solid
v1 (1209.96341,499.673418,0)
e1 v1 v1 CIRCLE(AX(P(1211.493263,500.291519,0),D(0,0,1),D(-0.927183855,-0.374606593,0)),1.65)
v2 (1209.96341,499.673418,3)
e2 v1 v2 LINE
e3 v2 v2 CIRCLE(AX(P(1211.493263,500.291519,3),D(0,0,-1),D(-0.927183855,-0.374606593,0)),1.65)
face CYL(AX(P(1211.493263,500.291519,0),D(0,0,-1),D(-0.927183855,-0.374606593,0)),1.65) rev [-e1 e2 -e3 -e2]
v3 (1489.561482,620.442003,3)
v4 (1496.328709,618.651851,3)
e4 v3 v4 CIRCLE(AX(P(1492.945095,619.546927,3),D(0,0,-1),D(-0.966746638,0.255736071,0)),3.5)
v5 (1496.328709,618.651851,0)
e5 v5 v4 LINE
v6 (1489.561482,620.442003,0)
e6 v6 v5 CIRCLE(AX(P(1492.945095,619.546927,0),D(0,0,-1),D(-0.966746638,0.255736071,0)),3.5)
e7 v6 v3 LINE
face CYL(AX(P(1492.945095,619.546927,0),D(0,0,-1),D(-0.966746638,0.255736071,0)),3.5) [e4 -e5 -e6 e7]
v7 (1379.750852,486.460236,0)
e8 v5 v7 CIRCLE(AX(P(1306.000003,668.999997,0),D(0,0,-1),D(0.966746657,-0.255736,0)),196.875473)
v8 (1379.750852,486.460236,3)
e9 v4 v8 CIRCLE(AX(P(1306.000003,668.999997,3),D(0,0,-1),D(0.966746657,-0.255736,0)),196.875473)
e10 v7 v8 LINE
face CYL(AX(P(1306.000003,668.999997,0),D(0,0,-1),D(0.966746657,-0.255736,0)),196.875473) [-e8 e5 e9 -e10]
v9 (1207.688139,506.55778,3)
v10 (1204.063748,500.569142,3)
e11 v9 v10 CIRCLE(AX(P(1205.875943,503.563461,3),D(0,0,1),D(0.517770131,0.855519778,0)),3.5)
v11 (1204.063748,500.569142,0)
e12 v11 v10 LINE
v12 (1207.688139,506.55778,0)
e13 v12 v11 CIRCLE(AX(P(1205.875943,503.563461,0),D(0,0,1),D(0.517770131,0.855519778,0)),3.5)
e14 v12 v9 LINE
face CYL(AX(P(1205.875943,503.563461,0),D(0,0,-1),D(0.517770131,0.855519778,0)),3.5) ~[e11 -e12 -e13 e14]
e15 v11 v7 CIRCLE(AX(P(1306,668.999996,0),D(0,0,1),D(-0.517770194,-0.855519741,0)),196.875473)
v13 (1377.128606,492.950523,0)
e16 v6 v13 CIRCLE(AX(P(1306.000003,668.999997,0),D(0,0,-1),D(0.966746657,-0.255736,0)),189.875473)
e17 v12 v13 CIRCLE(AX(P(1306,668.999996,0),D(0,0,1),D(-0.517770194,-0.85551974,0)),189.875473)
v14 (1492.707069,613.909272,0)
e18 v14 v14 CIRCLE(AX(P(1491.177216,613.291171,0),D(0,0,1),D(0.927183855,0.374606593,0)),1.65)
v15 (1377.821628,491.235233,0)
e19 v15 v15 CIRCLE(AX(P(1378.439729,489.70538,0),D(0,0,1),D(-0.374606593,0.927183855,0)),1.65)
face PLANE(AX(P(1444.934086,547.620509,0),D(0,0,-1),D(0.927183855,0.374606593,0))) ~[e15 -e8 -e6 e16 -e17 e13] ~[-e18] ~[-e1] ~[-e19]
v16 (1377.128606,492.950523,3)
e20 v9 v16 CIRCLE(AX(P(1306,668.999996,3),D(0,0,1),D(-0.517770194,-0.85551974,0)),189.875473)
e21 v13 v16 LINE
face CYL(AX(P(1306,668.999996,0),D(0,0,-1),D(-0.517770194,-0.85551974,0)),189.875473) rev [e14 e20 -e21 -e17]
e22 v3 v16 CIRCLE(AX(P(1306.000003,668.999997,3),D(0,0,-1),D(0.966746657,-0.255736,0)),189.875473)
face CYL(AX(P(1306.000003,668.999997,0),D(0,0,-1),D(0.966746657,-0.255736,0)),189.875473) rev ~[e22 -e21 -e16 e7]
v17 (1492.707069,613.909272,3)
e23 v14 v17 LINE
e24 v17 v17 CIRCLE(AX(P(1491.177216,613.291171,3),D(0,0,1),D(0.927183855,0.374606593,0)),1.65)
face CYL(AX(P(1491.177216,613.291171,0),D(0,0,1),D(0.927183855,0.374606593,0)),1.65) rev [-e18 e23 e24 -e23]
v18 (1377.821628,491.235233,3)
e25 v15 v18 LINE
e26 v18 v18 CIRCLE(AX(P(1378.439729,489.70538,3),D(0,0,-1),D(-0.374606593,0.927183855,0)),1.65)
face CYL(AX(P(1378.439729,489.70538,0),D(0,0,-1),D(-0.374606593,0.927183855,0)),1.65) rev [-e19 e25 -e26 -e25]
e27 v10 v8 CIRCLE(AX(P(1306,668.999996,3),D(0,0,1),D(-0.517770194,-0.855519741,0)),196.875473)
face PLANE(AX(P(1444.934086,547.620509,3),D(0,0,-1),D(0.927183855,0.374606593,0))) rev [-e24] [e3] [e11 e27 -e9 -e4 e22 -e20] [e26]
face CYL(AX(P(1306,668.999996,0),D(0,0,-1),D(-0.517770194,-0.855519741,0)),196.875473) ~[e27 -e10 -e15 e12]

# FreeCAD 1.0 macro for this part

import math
import FreeCAD as App
import Part
import Sketcher
Q = App.Units.Quantity

doc = App.newDocument("Part")
params = doc.addObject("Spreadsheet::Sheet", "Params")
for row, (alias, value) in enumerate([
    ("sketch1_radius", "3.5 mm"),
    ("pad1_length", "3 mm"),
    ("sketch2_diameter", "3.3 mm"),
], start=1):
    params.set(f"A{row}", alias)
    params.set(f"B{row}", "=" + value)
    params.setAlias(f"B{row}", alias)

body = doc.addObject("PartDesign::Body", "Body")

sketch1 = doc.addObject("Sketcher::SketchObject", "Sketch")
body.addObject(sketch1)
sketch1.AttachmentSupport = (doc.XY_Plane, [""])
sketch1.MapMode = "FlatFace"
sketch1.addGeometry([
    Part.ArcOfCircle(Part.Circle(App.Vector(0.000002, 0.000004, 0), App.Vector(0, 0, 1), 189.875473), math.radians(36.817201), math.radians(90.000001)),
    Part.ArcOfCircle(Part.Circle(App.Vector(154.807027, 115.882956, 0), App.Vector(0, 0, 1), 3.5), math.radians(-143.182795), math.radians(36.817205)),
    Part.ArcOfCircle(Part.Circle(App.Vector(0.000002, 0.000004, 0), App.Vector(0, 0, 1), 196.875473), math.radians(36.817201), math.radians(90.000001)),
    Part.LineSegment(App.Vector(0, 196.875477, 0), App.Vector(0, 189.875477, 0)),
], False)
sketch1.addConstraint([
    Sketcher.Constraint("Tangent", 0, 1, 1, 1),
    Sketcher.Constraint("Tangent", 1, 2, 2, 1),
    Sketcher.Constraint("Coincident", 2, 2, 3, 1),
    Sketcher.Constraint("Coincident", 3, 2, 0, 2),
    Sketcher.Constraint("Vertical", 3),
    Sketcher.Constraint("Coincident", 0, 3, -1, 1),
    Sketcher.Constraint("Coincident", 2, 3, -1, 1),
    Sketcher.Constraint("PointOnObject", 2, 2, -2),
    Sketcher.Constraint("Radius", 1, Q("3.5 mm")),
    Sketcher.Constraint("Radius", 0, Q("189.875473 mm")),
    Sketcher.Constraint("DistanceY", -1, 1, 1, 2, Q("117.98038 mm")),
])
sketch1.setExpression("Constraints[8]", "Params.sketch1_radius")
pad1 = doc.addObject("PartDesign::Pad", "Pad")
body.addObject(pad1)
pad1.Profile = sketch1
pad1.setExpression("Length", "Params.pad1_length")

sketch2 = doc.addObject("Sketcher::SketchObject", "Sketch001")
body.addObject(sketch2)
sketch2.AttachmentSupport = (doc.XY_Plane, [""])
sketch2.MapMode = "FlatFace"
sketch2.addGeometry([
    Part.Circle(App.Vector(150.82443, 121.020933, 0), App.Vector(0, 0, 1), 1.65),
    Part.ArcOfCircle(Part.Circle(App.Vector(0, 193.375477, 0), App.Vector(0, 0, 1), 1.65), math.radians(-90), math.radians(90)),
    Part.LineSegment(App.Vector(0, 195.025477, 0), App.Vector(0, 191.725477, 0)),
], False)
sketch2.addConstraint([
    Sketcher.Constraint("Coincident", 1, 1, 2, 2),
    Sketcher.Constraint("Coincident", 2, 1, 1, 2),
    Sketcher.Constraint("Vertical", 2),
    Sketcher.Constraint("Equal", 0, 1),
    Sketcher.Constraint("PointOnObject", 1, 3, -2),
    Sketcher.Constraint("PointOnObject", 1, 1, -2),
    Sketcher.Constraint("Diameter", 0, Q("3.3 mm")),
    Sketcher.Constraint("DistanceX", -1, 1, 0, 3, Q("150.82443 mm")),
    Sketcher.Constraint("DistanceY", -1, 1, 0, 3, Q("121.020933 mm")),
    Sketcher.Constraint("DistanceY", -1, 1, 1, 3, Q("193.375477 mm")),
])
sketch2.setExpression("Constraints[6]", "Params.sketch2_diameter")
pocket1 = doc.addObject("PartDesign::Pocket", "Pocket")
body.addObject(pocket1)
pocket1.Profile = sketch2
pocket1.Type = "ThroughAll"
pocket1.Midplane = True
doc.recompute()

mirrored = doc.addObject("PartDesign::Mirrored", "Mirrored")
body.addObject(mirrored)
mirrored.Originals = [pad1, pocket1]
mirrored.MirrorPlane = (doc.YZ_Plane, [""])
body.Tip = mirrored
body2 = doc.addObject("PartDesign::Body", "Body001")
doc.recompute()

body.Placement = App.Placement(App.Vector(0, 0, 0), App.Rotation(App.Vector(0, 0, 1), 60))
boolean = doc.addObject("PartDesign::Boolean", "Boolean")
body2.addObject(boolean)
boolean.Type = "Fuse"
boolean.addObjects([body])
body3 = doc.addObject("PartDesign::Body", "Body002")
doc.recompute()

body2.Placement = App.Placement(App.Vector(1306, 669, 0), App.Rotation(App.Vector(0, 0, 1), 142))
boolean2 = doc.addObject("PartDesign::Boolean", "Boolean001")
body3.addObject(boolean2)
boolean2.Type = "Fuse"
boolean2.addObjects([body2])

doc.recompute()
